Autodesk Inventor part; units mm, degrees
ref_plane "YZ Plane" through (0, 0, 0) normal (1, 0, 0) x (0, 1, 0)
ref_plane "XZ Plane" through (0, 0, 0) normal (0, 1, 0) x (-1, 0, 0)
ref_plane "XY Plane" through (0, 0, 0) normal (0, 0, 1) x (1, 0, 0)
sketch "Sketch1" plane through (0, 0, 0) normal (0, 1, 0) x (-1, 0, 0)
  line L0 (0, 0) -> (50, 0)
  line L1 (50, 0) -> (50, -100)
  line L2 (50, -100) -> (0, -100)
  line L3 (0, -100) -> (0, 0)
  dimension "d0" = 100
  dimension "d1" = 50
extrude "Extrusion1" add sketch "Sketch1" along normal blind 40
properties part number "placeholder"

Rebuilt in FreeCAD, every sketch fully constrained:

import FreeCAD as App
import Part
import Sketcher
Q = App.Units.Quantity

doc = App.newDocument("Part")
body = doc.addObject("PartDesign::Body", "Body")

# Sketch on XZ plane
sketch1 = body.newObject("Sketcher::SketchObject", "Sketch")
sketch1.AttachmentSupport = (doc.getObject("XZ_Plane"), [""])
sketch1.MapMode = "FlatFace"
sketch1.addGeometry([
    Part.LineSegment(App.Vector(-50, 0, 0), App.Vector(0, 0, 0)),
    Part.LineSegment(App.Vector(0, 0, 0), App.Vector(0, -100, 0)),
    Part.LineSegment(App.Vector(0, -100, 0), App.Vector(-50, -100, 0)),
    Part.LineSegment(App.Vector(-50, -100, 0), App.Vector(-50, 0, 0)),
], False)
sketch1.addConstraint([
    Sketcher.Constraint("Coincident", 0, 2, 1, 1),
    Sketcher.Constraint("Coincident", 1, 2, 2, 1),
    Sketcher.Constraint("Coincident", 2, 2, 3, 1),
    Sketcher.Constraint("Coincident", 3, 2, 0, 1),
    Sketcher.Constraint("Horizontal", 0),
    Sketcher.Constraint("Vertical", 1),
    Sketcher.Constraint("Horizontal", 2),
    Sketcher.Constraint("Vertical", 3),
    Sketcher.Constraint("Coincident", 0, 2, -1, 1),
    Sketcher.Constraint("DistanceY", 1, 2, 1, 1, Q("3.937 in")),
    Sketcher.Constraint("DistanceX", 0, 1, 0, 2, Q("1.9685 in")),
])
pad1 = body.newObject("PartDesign::Pad", "Pad")
pad1.Profile = sketch1
pad1.Length = Q("1.5748031 in")
pad1.Reversed = True

doc.recompute()
